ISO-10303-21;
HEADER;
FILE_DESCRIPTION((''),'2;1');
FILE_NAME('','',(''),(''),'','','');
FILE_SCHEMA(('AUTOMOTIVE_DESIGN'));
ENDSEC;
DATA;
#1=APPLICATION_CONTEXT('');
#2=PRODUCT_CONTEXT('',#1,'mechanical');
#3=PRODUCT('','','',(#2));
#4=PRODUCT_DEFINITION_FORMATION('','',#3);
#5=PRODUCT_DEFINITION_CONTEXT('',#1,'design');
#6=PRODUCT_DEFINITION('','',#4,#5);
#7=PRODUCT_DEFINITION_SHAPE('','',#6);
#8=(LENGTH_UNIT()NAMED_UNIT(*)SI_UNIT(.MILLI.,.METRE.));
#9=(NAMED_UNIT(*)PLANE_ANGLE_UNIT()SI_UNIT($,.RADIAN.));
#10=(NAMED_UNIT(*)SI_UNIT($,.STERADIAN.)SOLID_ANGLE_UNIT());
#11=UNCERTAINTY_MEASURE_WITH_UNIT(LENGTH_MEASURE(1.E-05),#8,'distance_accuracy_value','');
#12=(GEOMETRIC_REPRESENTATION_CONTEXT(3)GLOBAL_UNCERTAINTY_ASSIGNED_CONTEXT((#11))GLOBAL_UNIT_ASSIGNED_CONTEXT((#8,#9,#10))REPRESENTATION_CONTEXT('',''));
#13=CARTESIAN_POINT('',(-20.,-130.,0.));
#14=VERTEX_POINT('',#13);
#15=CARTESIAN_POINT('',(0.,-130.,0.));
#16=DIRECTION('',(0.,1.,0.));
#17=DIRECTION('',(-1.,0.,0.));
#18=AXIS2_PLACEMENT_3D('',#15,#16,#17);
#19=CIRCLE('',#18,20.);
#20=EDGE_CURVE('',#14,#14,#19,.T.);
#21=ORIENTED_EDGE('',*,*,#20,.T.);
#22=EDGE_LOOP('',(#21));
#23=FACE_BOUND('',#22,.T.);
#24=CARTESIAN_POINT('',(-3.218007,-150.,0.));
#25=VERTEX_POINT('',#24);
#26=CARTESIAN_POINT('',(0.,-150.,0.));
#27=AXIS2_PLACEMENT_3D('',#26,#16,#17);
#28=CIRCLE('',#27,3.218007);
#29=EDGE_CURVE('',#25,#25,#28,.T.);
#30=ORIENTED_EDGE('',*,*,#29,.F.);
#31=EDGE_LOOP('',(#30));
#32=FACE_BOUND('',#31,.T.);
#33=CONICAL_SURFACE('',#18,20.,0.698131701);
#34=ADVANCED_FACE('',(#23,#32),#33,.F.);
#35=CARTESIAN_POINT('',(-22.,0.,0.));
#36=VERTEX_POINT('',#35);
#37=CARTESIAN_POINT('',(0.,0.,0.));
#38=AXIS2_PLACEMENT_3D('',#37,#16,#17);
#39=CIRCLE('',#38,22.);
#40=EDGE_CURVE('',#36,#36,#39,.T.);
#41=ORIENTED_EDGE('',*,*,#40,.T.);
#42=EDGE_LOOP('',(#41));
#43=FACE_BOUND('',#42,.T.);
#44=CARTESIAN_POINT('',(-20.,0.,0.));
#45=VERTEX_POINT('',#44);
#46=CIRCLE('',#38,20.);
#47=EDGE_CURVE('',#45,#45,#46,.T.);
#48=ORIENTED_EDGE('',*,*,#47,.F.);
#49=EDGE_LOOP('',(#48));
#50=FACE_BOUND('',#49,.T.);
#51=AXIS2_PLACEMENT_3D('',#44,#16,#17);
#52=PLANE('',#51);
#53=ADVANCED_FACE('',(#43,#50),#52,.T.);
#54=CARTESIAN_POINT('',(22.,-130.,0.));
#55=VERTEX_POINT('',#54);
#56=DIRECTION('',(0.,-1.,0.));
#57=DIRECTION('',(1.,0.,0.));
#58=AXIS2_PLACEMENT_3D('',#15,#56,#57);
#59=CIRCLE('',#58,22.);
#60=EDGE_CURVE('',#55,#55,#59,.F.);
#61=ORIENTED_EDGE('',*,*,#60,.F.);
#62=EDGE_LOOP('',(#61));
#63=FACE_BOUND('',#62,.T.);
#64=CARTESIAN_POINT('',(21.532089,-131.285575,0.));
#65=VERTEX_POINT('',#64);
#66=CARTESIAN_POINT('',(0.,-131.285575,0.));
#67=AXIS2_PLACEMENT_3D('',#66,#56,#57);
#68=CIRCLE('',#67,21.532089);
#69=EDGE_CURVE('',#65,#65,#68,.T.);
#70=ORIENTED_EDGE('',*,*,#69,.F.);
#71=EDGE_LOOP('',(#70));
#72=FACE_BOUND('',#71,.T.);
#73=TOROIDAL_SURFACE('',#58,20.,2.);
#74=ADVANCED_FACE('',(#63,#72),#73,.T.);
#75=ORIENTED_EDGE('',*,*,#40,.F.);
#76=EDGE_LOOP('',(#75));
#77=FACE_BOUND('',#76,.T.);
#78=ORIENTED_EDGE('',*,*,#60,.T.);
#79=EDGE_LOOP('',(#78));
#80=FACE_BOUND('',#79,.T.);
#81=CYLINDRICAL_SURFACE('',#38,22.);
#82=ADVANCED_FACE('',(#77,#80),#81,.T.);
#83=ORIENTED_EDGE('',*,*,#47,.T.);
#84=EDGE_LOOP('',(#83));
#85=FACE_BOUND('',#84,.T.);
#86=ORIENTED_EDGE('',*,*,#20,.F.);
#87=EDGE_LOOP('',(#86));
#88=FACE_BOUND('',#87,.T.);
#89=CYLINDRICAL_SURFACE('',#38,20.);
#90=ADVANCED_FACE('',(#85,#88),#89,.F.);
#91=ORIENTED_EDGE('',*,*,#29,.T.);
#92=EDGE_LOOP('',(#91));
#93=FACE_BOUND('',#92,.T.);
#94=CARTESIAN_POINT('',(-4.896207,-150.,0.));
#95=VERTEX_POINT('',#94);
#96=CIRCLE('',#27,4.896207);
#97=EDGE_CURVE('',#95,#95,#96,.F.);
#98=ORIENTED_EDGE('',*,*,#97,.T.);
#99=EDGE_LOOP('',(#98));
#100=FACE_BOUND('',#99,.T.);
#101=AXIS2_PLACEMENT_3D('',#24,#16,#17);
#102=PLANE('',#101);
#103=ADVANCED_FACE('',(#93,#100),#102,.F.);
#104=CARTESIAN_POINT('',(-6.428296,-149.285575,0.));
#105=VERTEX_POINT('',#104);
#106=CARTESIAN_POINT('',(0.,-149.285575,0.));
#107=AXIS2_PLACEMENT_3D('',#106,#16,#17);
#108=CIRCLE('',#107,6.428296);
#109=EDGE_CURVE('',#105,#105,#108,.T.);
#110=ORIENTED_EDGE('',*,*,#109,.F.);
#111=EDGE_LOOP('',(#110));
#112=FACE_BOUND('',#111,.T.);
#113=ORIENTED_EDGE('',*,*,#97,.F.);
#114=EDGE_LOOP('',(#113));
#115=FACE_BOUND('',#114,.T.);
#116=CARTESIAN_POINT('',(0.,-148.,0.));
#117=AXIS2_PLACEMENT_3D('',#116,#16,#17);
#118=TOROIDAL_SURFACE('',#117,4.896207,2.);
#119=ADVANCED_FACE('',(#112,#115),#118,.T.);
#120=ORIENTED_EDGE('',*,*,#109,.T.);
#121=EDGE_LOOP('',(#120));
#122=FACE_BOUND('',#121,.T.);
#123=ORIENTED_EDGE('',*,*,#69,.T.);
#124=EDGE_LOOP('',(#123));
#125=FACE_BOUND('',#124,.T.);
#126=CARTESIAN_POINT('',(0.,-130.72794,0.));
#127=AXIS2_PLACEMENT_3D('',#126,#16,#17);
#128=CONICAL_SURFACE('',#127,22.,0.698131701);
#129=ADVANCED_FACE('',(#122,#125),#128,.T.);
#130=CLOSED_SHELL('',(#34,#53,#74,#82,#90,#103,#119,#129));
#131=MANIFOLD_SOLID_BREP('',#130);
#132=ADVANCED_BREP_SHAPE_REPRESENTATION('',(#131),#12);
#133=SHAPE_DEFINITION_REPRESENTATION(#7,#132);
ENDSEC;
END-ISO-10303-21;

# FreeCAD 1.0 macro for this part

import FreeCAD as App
import Part
import Sketcher

V = App.Vector
Q = App.Units.Quantity


def edges_at(feature, points):
    """Names of the edges that pass closest to the given points."""
    edges = feature.Shape.Edges
    near = lambda p: min(range(len(edges)), key=lambda i: edges[i].distToShape(Part.Vertex(*p))[0])
    return sorted({f"Edge{near(p) + 1}" for p in points})

doc = App.newDocument("Part")
body = doc.addObject("PartDesign::Body", "Body")

sketch1 = body.newObject("Sketcher::SketchObject", "Sketch")
sketch1.AttachmentSupport = (doc.getObject("XY_Plane"), [""])
sketch1.MapMode = "FlatFace"
sketch1.addGeometry([
    Part.LineSegment(V(-22, 0, 0), V(-22, -130.72794, 0)),
    Part.LineSegment(V(-22, -130.72794, 0), V(-5.828822, -150, 0)),
    Part.LineSegment(V(-5.828822, -150, 0), V(-3.218007, -150, 0)),
    Part.LineSegment(V(-3.218007, -150, 0), V(-20, -130, 0)),
    Part.LineSegment(V(-20, -130, 0), V(-20, 0, 0)),
    Part.LineSegment(V(-20, 0, 0), V(-22, 0, 0)),
], False)
sketch1.addConstraint([
    Sketcher.Constraint("Coincident", 0, 2, 1, 1),
    Sketcher.Constraint("Coincident", 1, 2, 2, 1),
    Sketcher.Constraint("Coincident", 2, 2, 3, 1),
    Sketcher.Constraint("Coincident", 3, 2, 4, 1),
    Sketcher.Constraint("Coincident", 4, 2, 5, 1),
    Sketcher.Constraint("Coincident", 5, 2, 0, 1),
    Sketcher.Constraint("Vertical", 0),
    Sketcher.Constraint("Horizontal", 2),
    Sketcher.Constraint("Vertical", 4),
    Sketcher.Constraint("Horizontal", 5),
    Sketcher.Constraint("PointOnObject", 4, 2, -1),
    Sketcher.Constraint("Parallel", 1, 3),
    Sketcher.Constraint("DistanceX", 5, 2, 5, 1, 2.0),
    Sketcher.Constraint("DistanceY", 4, 1, 4, 2, 130.0),
    Sketcher.Constraint("Angle", 1, Q("-50 deg")),
    Sketcher.Constraint("DistanceX", 0, 2, -1, 1, 22.0),
    Sketcher.Constraint("DistanceY", 1, 2, -1, 1, 150.0),
    Sketcher.Constraint("DistanceY", 0, 2, 0, 1, 130.72794),
])
revolution = body.newObject("PartDesign::Revolution", "Revolution")
revolution.Profile = sketch1
revolution.ReferenceAxis = (sketch1, ["V_Axis"])
revolution.Angle = 360
doc.recompute()

fillet = body.newObject("PartDesign::Fillet", "Fillet")
fillet.Base = (revolution, edges_at(revolution, [(22, -130.728, 0)]))
fillet.Radius = 2
doc.recompute()

fillet2 = body.newObject("PartDesign::Fillet", "Fillet001")
fillet2.Base = (fillet, edges_at(fillet, [(5.829, -150, 0)]))
fillet2.Radius = 2

doc.recompute()
